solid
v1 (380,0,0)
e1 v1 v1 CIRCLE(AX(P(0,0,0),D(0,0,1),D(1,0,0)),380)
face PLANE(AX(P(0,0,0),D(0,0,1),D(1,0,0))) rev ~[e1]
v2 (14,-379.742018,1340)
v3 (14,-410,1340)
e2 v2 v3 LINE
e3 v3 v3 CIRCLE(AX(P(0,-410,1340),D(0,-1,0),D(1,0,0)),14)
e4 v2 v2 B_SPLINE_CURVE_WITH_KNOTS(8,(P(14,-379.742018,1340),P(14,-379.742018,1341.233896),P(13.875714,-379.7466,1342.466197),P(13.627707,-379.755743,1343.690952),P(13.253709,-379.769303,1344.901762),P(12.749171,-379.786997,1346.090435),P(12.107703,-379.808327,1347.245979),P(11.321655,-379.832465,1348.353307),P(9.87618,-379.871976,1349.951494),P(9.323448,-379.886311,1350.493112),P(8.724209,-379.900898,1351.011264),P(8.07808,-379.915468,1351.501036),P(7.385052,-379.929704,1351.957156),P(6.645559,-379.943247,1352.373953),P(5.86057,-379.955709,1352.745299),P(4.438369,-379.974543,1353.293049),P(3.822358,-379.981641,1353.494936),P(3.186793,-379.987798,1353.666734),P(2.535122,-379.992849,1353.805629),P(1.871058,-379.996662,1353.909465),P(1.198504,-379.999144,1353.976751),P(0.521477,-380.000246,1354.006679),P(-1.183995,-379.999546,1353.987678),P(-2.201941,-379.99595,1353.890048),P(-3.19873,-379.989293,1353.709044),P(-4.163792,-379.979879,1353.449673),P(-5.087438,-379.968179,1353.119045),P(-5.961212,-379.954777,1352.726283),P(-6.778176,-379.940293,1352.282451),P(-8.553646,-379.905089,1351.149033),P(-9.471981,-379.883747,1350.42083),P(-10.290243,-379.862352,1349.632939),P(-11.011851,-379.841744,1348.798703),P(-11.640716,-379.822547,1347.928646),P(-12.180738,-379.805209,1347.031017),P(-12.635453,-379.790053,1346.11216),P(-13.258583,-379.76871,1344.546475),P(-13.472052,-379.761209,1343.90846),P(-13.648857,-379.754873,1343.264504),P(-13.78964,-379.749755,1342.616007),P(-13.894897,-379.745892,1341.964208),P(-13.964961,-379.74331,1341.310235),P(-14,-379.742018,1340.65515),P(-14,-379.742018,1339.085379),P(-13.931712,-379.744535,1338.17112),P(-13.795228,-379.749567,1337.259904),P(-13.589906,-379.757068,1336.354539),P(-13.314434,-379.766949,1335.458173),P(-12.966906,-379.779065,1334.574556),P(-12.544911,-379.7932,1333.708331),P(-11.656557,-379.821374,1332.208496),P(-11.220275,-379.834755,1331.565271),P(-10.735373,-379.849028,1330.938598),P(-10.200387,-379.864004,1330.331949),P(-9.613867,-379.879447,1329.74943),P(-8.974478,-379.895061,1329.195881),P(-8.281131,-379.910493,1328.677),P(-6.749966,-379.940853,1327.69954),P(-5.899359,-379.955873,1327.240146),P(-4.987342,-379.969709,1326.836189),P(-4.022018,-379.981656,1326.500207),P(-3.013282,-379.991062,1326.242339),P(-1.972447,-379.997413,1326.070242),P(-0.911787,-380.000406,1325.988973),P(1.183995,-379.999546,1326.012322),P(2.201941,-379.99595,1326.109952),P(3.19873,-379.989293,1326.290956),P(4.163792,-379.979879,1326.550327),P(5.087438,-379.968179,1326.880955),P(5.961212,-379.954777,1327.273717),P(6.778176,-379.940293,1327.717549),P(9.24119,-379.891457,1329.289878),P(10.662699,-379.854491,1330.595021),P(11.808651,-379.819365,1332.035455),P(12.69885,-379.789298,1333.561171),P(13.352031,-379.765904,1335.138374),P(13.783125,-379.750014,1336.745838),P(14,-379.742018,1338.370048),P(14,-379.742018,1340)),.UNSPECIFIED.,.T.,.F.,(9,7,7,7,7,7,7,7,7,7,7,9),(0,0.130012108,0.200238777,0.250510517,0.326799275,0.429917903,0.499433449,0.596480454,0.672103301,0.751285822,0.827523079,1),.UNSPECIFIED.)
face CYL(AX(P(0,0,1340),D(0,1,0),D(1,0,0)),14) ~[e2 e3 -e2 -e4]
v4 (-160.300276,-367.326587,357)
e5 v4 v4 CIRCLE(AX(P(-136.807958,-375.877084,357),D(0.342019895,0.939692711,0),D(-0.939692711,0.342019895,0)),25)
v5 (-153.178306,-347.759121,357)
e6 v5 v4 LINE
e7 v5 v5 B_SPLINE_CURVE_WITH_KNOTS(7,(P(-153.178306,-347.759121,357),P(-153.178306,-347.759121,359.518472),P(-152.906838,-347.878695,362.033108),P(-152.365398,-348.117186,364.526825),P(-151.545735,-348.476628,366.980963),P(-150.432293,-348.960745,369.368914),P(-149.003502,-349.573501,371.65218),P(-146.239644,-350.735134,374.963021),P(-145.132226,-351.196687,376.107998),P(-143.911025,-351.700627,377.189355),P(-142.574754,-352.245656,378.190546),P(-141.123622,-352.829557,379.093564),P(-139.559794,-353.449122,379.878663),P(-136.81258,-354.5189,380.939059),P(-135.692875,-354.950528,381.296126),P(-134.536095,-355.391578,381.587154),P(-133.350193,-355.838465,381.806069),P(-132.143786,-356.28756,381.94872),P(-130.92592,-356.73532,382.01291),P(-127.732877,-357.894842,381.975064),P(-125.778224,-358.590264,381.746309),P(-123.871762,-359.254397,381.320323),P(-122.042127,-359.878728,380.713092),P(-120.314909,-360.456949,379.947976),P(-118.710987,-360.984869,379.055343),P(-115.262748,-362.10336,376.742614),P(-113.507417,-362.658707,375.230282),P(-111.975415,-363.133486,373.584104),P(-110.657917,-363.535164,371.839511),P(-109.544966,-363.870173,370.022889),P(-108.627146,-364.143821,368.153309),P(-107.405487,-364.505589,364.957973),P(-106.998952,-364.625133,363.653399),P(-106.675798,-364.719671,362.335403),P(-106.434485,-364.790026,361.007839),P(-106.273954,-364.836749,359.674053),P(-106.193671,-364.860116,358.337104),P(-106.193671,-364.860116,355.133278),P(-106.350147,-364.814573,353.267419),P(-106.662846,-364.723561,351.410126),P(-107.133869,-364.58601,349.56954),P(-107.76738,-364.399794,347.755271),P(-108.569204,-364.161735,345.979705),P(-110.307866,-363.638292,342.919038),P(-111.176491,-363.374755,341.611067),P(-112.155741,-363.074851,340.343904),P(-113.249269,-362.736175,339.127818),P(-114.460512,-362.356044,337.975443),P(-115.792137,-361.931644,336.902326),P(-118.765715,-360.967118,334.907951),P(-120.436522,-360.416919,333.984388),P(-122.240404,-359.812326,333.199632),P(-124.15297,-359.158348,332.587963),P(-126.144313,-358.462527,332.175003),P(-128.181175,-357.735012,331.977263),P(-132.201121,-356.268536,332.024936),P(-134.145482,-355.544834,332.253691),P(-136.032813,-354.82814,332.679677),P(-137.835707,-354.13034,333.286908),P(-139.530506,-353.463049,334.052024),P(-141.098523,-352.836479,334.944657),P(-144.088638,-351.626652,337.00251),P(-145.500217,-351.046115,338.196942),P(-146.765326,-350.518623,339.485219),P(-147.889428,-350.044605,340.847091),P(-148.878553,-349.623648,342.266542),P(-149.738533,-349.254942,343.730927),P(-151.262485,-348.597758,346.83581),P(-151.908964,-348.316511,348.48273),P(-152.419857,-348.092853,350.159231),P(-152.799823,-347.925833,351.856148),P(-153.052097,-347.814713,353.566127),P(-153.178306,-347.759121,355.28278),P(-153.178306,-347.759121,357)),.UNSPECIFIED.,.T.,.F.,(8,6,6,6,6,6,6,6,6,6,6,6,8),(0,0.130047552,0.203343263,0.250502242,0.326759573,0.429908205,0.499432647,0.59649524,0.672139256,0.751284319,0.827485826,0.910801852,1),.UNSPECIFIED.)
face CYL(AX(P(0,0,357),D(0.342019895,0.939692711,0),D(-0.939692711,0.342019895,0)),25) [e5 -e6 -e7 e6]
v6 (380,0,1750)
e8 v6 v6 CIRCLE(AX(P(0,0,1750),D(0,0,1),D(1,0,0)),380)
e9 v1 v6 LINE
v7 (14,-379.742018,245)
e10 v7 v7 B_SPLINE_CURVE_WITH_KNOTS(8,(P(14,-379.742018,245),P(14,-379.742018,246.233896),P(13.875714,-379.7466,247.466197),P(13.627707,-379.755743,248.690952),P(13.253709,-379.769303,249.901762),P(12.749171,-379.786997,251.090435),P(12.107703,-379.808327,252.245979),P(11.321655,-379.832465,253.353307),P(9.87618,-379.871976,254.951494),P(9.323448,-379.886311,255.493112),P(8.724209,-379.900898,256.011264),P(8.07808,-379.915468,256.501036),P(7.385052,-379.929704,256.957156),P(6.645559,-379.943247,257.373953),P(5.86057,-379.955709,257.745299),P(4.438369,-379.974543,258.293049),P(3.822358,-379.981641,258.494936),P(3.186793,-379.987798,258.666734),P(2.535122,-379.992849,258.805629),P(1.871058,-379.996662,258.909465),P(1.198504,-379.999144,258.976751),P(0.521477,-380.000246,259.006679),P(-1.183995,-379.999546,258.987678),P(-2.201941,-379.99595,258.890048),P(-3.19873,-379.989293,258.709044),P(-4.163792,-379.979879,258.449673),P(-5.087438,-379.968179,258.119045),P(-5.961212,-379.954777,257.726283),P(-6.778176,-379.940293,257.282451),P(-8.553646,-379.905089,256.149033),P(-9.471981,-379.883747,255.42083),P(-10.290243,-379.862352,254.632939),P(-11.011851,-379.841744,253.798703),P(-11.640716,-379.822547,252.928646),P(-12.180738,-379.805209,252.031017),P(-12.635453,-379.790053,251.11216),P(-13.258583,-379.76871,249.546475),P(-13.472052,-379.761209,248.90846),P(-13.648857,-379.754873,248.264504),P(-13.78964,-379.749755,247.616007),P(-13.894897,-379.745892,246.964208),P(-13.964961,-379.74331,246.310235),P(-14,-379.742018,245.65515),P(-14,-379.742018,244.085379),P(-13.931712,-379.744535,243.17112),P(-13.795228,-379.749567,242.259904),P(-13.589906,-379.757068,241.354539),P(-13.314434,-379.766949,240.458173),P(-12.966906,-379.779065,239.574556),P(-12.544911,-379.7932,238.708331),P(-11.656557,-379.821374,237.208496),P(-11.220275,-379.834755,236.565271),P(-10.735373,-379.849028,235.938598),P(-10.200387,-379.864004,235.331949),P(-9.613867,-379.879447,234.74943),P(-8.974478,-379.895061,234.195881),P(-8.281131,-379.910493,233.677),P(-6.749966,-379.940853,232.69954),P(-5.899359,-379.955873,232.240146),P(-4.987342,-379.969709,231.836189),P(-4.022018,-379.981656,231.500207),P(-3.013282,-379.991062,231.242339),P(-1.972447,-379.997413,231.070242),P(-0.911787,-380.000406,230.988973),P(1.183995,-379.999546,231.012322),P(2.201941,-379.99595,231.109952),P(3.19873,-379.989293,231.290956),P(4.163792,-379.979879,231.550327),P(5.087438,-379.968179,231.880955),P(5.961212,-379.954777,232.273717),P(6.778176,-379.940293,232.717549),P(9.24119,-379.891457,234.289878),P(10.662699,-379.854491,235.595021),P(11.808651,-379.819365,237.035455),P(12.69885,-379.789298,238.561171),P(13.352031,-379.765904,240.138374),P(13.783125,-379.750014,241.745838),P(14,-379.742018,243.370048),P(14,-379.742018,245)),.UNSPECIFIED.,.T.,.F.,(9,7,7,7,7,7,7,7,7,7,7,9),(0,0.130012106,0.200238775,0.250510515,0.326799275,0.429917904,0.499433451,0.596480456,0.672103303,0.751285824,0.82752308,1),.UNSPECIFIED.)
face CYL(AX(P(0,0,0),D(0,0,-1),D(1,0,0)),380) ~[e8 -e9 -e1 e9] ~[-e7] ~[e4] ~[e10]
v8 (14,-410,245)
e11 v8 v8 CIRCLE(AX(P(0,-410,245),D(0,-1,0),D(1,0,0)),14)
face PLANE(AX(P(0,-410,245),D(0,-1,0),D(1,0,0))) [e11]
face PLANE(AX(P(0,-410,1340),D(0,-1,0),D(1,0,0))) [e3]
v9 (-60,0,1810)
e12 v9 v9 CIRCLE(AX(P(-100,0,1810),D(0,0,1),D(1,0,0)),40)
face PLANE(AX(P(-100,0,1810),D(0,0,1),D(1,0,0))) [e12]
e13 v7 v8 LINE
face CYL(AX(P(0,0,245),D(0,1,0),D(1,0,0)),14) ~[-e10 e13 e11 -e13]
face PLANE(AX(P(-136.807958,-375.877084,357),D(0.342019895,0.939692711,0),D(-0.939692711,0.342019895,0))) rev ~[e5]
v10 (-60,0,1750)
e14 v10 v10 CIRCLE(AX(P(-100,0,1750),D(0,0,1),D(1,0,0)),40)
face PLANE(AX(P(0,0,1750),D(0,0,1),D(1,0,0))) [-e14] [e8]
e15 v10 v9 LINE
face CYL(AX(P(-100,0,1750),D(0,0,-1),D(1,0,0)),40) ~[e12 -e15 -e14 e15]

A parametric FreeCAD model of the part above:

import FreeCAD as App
import Part
import Sketcher
from FreeCAD import Vector

doc = App.newDocument("Part")
body = doc.addObject("PartDesign::Body", "Body")

sketch1 = body.newObject("Sketcher::SketchObject", "Sketch")
sketch1.AttachmentSupport = (doc.getObject("XY_Plane"), [""])
sketch1.MapMode = "FlatFace"
sketch1.addGeometry(Part.Circle(Vector(0, 0, 0), Vector(0, 0, 1), 380), False)
sketch1.addConstraint([
    Sketcher.Constraint("Coincident", 0, 3, -1, 1),
    Sketcher.Constraint("Diameter", 0, 760.0),
])
pad1 = body.newObject("PartDesign::Pad", "Pad")
pad1.Profile = sketch1
pad1.Length = 1750

sketch2 = body.newObject("Sketcher::SketchObject", "Sketch001")
sketch2.AttachmentSupport = (doc.getObject("XZ_Plane"), [""])
sketch2.MapMode = "FlatFace"
sketch2.addGeometry([
    Part.Circle(Vector(0, 245, 0), Vector(0, 0, 1), 14),
    Part.Circle(Vector(0, 1340, 0), Vector(0, 0, 1), 14),
], False)
sketch2.addConstraint([
    Sketcher.Constraint("Equal", 0, 1),
    Sketcher.Constraint("PointOnObject", 0, 3, -2),
    Sketcher.Constraint("PointOnObject", 1, 3, -2),
    Sketcher.Constraint("Diameter", 0, 28.0),
    Sketcher.Constraint("DistanceY", -1, 1, 0, 3, 245.0),
    Sketcher.Constraint("DistanceY", -1, 1, 1, 3, 1340.0),
])
pad2 = body.newObject("PartDesign::Pad", "Pad001")
pad2.Profile = sketch2
pad2.Length = 410

sketch3 = body.newObject("Sketcher::SketchObject", "Sketch002")
sketch3.AttachmentSupport = (doc.getObject("XY_Plane"), [""])
sketch3.MapMode = "FlatFace"
sketch3.AttachmentOffset = App.Placement(Vector(0, 0, 1750), App.Rotation())
sketch3.addGeometry(Part.Circle(Vector(-100, 0, 0), Vector(0, 0, 1), 40), False)
sketch3.addConstraint([
    Sketcher.Constraint("PointOnObject", 0, 3, -1),
    Sketcher.Constraint("Diameter", 0, 80.0),
    Sketcher.Constraint("DistanceX", 0, 3, -1, 1, 100.0),
])
pad3 = body.newObject("PartDesign::Pad", "Pad002")
pad3.Profile = sketch3
pad3.Length = 60

sketch4 = body.newObject("Sketcher::SketchObject", "Sketch003")
sketch4.Placement = App.Placement(Vector(0, 0, 0), App.Rotation(Vector(-0.939692711, 0.342019895, 0), Vector(0, 0, 1), Vector(0.342019895, 0.939692711, 0), "ZXY"))
sketch4.addGeometry(Part.Circle(Vector(0, 357, 0), Vector(0, 0, 1), 25), False)
sketch4.addConstraint([
    Sketcher.Constraint("PointOnObject", 0, 3, -2),
    Sketcher.Constraint("Diameter", 0, 50.0),
    Sketcher.Constraint("DistanceY", -1, 1, 0, 3, 357.0),
])
pad4 = body.newObject("PartDesign::Pad", "Pad003")
pad4.Profile = sketch4
pad4.Length = 400
pad4.Reversed = True

doc.recompute()
